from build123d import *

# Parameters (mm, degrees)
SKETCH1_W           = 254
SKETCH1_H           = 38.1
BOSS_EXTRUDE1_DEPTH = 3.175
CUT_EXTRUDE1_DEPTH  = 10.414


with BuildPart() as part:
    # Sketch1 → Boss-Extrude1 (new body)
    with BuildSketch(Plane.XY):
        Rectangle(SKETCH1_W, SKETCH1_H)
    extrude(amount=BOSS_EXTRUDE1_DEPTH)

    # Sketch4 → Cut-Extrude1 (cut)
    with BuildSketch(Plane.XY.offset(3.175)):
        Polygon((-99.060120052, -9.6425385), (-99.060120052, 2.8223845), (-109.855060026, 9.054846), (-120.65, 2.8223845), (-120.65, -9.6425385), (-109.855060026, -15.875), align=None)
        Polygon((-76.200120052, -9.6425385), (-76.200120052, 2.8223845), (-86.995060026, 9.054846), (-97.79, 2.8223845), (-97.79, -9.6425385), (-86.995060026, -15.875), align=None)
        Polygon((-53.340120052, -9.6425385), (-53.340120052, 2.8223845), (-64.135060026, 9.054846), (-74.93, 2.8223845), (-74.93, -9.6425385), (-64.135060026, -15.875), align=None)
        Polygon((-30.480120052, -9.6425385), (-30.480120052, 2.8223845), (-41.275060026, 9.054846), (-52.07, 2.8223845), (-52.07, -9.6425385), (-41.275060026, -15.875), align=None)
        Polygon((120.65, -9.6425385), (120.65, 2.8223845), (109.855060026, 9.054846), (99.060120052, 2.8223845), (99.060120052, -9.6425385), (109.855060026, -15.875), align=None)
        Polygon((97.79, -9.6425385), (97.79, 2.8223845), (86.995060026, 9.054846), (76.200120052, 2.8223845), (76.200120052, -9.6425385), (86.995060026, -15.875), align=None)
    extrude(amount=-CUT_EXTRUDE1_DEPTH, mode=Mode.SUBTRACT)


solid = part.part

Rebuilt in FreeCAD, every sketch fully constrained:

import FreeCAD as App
import Part
import Sketcher
Q = App.Units.Quantity


def add_polygon(sketch, points):
    """Adds a closed chain of lines whose ends are joined by coincident constraints."""
    first, n = sketch.GeometryCount, len(points)
    for a, b in zip(points, points[1:] + points[:1]):
        sketch.addGeometry(Part.LineSegment(App.Vector(*a, 0), App.Vector(*b, 0)), False)
    for i in range(n):
        sketch.addConstraint(Sketcher.Constraint("Coincident", first + i, 2, first + (i + 1) % n, 1))

doc = App.newDocument("Part")
body = doc.addObject("PartDesign::Body", "Body")

# Sketch on XY plane
sketch1 = body.newObject("Sketcher::SketchObject", "Sketch")
sketch1.AttachmentSupport = (doc.getObject("XY_Plane"), [""])
sketch1.MapMode = "FlatFace"
add_polygon(sketch1, [(-127, 19), (-127, -19), (127, -19), (127, 19)])  # lines 0-3
sketch1.addConstraint([
    Sketcher.Constraint("Vertical", 0),
    Sketcher.Constraint("Horizontal", 1),
    Sketcher.Constraint("Vertical", 2),
    Sketcher.Constraint("Horizontal", 3),
    Sketcher.Constraint("Symmetric", 0, 2, 2, 2, -1, 1),
    Sketcher.Constraint("DistanceX", 1, 1, 1, 2, Q("10 in")),
    Sketcher.Constraint("DistanceY", 0, 2, 0, 1, Q("1.5 in")),
])
pad1 = body.newObject("PartDesign::Pad", "Pad")
pad1.Profile = sketch1
pad1.Length = Q("0.125 in")

# Sketch on XY plane
sketch2 = body.newObject("Sketcher::SketchObject", "Sketch001")
sketch2.AttachmentSupport = (doc.getObject("XY_Plane"), [""])
sketch2.MapMode = "FlatFace"
sketch2.AttachmentOffset = App.Placement(App.Vector(0, 0, 0.125 * 25.4), App.Rotation())
add_polygon(sketch2, [(-99, -10), (-99, 3), (-110, 9), (-121, 3), (-121, -10), (-110, -16)])  # lines 0-5
add_polygon(sketch2, [(-76, -10), (-76, 3), (-87, 9), (-98, 3), (-98, -10), (-87, -16)])  # lines 6-11
add_polygon(sketch2, [(-53, -10), (-53, 3), (-64, 9), (-75, 3), (-75, -10), (-64, -16)])  # lines 12-17
add_polygon(sketch2, [(-30, -10), (-30, 3), (-41, 9), (-52, 3), (-52, -10), (-41, -16)])  # lines 18-23
add_polygon(sketch2, [(121, -10), (121, 3), (110, 9), (99, 3), (99, -10), (110, -16)])  # lines 24-29
add_polygon(sketch2, [(98, -10), (98, 3), (87, 9), (76, 3), (76, -10), (87, -16)])  # lines 30-35
sketch2.addConstraint([
    Sketcher.Constraint("Vertical", 0),
    Sketcher.Constraint("Vertical", 3),
    Sketcher.Constraint("Vertical", 6),
    Sketcher.Constraint("Vertical", 9),
    Sketcher.Constraint("Vertical", 12),
    Sketcher.Constraint("Vertical", 15),
    Sketcher.Constraint("Vertical", 18),
    Sketcher.Constraint("Vertical", 21),
    Sketcher.Constraint("Vertical", 24),
    Sketcher.Constraint("Vertical", 27),
    Sketcher.Constraint("Vertical", 30),
    Sketcher.Constraint("Vertical", 33),
    Sketcher.Constraint("Symmetric", 2, 2, 24, 2, -2),
    Sketcher.Constraint("Symmetric", 1, 2, 25, 2, -2),
    Sketcher.Constraint("Symmetric", 0, 2, 26, 2, -2),
    Sketcher.Constraint("Symmetric", 4, 2, 28, 2, -2),
    Sketcher.Constraint("Symmetric", 8, 2, 30, 2, -2),
    Sketcher.Constraint("Symmetric", 7, 2, 31, 2, -2),
    Sketcher.Constraint("Symmetric", 6, 2, 32, 2, -2),
    Sketcher.Constraint("Symmetric", 10, 2, 34, 2, -2),
    Sketcher.Constraint("Parallel", 1, 4),
    Sketcher.Constraint("Parallel", 2, 5),
    Sketcher.Constraint("Parallel", 4, 7),
    Sketcher.Constraint("Parallel", 5, 8),
    Sketcher.Constraint("Parallel", 7, 10),
    Sketcher.Constraint("Parallel", 8, 11),
    Sketcher.Constraint("Parallel", 10, 13),
    Sketcher.Constraint("Parallel", 11, 14),
    Sketcher.Constraint("Parallel", 13, 16),
    Sketcher.Constraint("Parallel", 14, 17),
    Sketcher.Constraint("Parallel", 16, 19),
    Sketcher.Constraint("Parallel", 17, 20),
    Sketcher.Constraint("Parallel", 19, 22),
    Sketcher.Constraint("Parallel", 20, 23),
    Sketcher.Constraint("Parallel", 22, 25),
    Sketcher.Constraint("Parallel", 25, 28),
    Sketcher.Constraint("Parallel", 26, 29),
    Sketcher.Constraint("Parallel", 31, 34),
    Sketcher.Constraint("Parallel", 32, 35),
    Sketcher.Constraint("Horizontal", 0, 2, 2, 2),
    Sketcher.Constraint("Horizontal", 3, 2, 5, 2),
    Sketcher.Constraint("Horizontal", 2, 2, 6, 2),
    Sketcher.Constraint("Horizontal", 1, 2, 7, 2),
    Sketcher.Constraint("Horizontal", 6, 2, 8, 2),
    Sketcher.Constraint("Horizontal", 5, 2, 9, 2),
    Sketcher.Constraint("Horizontal", 4, 2, 10, 2),
    Sketcher.Constraint("Horizontal", 8, 2, 12, 2),
    Sketcher.Constraint("Horizontal", 7, 2, 13, 2),
    Sketcher.Constraint("Horizontal", 12, 2, 14, 2),
    Sketcher.Constraint("Horizontal", 11, 2, 15, 2),
    Sketcher.Constraint("Horizontal", 10, 2, 16, 2),
    Sketcher.Constraint("Horizontal", 14, 2, 18, 2),
    Sketcher.Constraint("Horizontal", 13, 2, 19, 2),
    Sketcher.Constraint("Horizontal", 18, 2, 20, 2),
    Sketcher.Constraint("Horizontal", 17, 2, 21, 2),
    Sketcher.Constraint("Horizontal", 16, 2, 22, 2),
    Sketcher.Constraint("Angle", 1, Q("150 deg")),
    Sketcher.Constraint("DistanceX", 0, 2, 6, 2, Q("0.9 in")),
    Sketcher.Constraint("DistanceX", 6, 2, 12, 2, Q("0.9 in")),
    Sketcher.Constraint("DistanceX", 12, 2, 18, 2, Q("0.9 in")),
    Sketcher.Constraint("DistanceX", 20, 2, 24, 2, Q("6.8 in")),
    Sketcher.Constraint("DistanceY", 4, 2, -1, 1, Q("0.625 in")),
    Sketcher.Constraint("DistanceY", 0, 1, 0, 2, 12.464923),
    Sketcher.Constraint("DistanceX", 0, 2, -1, 1, 99.06012),
])
pocket1 = body.newObject("PartDesign::Pocket", "Pocket")
pocket1.Profile = sketch2
pocket1.Length = Q("0.41 in")

doc.recompute()
